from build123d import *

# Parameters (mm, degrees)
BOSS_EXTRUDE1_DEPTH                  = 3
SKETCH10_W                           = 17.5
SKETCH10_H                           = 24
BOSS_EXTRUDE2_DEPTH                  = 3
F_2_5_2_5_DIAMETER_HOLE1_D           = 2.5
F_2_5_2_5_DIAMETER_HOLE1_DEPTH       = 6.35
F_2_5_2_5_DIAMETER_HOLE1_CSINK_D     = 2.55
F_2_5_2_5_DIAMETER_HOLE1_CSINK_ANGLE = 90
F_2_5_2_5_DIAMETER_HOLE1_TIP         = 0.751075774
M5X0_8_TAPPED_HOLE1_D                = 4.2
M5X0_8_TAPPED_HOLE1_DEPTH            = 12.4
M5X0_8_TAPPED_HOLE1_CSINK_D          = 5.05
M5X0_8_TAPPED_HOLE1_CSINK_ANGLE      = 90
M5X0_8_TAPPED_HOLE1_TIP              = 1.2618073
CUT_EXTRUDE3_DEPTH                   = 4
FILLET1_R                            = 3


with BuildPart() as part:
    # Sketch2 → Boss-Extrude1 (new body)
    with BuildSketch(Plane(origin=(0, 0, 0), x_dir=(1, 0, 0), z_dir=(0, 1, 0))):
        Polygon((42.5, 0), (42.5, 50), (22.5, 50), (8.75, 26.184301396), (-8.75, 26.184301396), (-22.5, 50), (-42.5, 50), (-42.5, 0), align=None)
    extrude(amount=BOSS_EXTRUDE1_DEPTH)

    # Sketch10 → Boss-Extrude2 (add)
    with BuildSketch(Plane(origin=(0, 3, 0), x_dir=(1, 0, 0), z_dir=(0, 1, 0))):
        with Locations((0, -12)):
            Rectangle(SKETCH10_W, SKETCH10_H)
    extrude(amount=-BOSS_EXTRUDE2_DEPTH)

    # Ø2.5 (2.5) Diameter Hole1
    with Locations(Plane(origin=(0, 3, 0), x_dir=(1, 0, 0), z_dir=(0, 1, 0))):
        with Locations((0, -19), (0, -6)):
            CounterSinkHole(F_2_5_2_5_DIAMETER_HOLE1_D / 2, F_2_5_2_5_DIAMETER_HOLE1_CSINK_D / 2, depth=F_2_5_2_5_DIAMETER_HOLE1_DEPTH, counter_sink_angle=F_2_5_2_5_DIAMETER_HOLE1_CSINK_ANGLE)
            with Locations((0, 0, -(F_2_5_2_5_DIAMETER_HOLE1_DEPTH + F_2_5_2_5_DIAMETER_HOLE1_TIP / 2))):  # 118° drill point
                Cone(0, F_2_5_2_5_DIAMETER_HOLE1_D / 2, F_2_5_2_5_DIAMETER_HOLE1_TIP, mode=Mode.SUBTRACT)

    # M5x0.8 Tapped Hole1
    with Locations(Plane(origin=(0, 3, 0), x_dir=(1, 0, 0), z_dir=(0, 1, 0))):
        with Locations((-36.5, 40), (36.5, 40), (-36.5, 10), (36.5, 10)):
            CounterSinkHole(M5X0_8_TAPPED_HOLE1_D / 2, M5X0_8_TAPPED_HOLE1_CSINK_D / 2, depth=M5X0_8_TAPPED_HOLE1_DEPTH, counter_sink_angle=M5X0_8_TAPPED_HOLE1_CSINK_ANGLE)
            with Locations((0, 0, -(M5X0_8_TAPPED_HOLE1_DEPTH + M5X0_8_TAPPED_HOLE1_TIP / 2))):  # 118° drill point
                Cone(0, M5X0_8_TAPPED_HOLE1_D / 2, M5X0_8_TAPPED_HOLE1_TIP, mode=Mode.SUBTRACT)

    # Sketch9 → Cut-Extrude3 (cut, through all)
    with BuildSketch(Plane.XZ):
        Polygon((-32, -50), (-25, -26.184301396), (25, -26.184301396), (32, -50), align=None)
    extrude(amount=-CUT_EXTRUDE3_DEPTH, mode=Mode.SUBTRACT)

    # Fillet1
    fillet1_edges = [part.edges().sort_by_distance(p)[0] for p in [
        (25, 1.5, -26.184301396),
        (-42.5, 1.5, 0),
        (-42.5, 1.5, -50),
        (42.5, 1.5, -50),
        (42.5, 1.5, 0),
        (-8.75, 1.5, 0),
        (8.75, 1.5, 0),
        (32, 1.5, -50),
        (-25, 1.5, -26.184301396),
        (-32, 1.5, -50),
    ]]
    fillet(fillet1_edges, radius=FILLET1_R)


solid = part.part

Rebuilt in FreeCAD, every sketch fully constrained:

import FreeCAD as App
import Part
import Sketcher
from FreeCAD import Vector
Q = App.Units.Quantity


def edges_at(feature, points):
    """Names of the edges that pass closest to the given points."""
    edges = feature.Shape.Edges
    near = lambda p: min(range(len(edges)), key=lambda i: edges[i].distToShape(Part.Vertex(*p))[0])
    return sorted({f"Edge{near(p) + 1}" for p in points})


def add_polygon(sketch, points):
    """Adds a closed chain of lines whose ends are joined by coincident constraints."""
    first, n = sketch.GeometryCount, len(points)
    for a, b in zip(points, points[1:] + points[:1]):
        sketch.addGeometry(Part.LineSegment(App.Vector(*a, 0), App.Vector(*b, 0)), False)
    for i in range(n):
        sketch.addConstraint(Sketcher.Constraint("Coincident", first + i, 2, first + (i + 1) % n, 1))

doc = App.newDocument("Part")
body = doc.addObject("PartDesign::Body", "Body")

sketch1 = body.newObject("Sketcher::SketchObject", "Sketch")
sketch1.AttachmentSupport = (doc.getObject("XZ_Plane"), [""])
sketch1.MapMode = "FlatFace"
add_polygon(sketch1, [(42, 0), (42, -50), (22, -50), (9, -26), (-9, -26), (-22, -50), (-42, -50), (-42, 0)])
sketch1.addConstraint(Sketcher.Constraint("Vertical", 0))
sketch1.addConstraint(Sketcher.Constraint("Horizontal", 1))
sketch1.addConstraint(Sketcher.Constraint("Horizontal", 3))
sketch1.addConstraint(Sketcher.Constraint("Horizontal", 5))
sketch1.addConstraint(Sketcher.Constraint("Vertical", 6))
sketch1.addConstraint(Sketcher.Constraint("Horizontal", 7))
sketch1.addConstraint(Sketcher.Constraint("Symmetric", 6, 2, 7, 2, -1, 1))
sketch1.addConstraint(Sketcher.Constraint("Symmetric", 1, 2, 4, 2, -2))
sketch1.addConstraint(Sketcher.Constraint("Equal", 2, 4))
sketch1.addConstraint(Sketcher.Constraint("DistanceX", 1, 2, 1, 1, 20.0))
sketch1.addConstraint(Sketcher.Constraint("DistanceX", 7, 1, 7, 2, 85.0))
sketch1.addConstraint(Sketcher.Constraint("DistanceY", 0, 2, 0, 1, 50.0))
sketch1.addConstraint(Sketcher.Constraint("Angle", 2, Q("120 deg")))
sketch1.addConstraint(Sketcher.Constraint("DistanceX", 3, 2, 3, 1, 17.5))
pad1 = body.newObject("PartDesign::Pad", "Pad")
pad1.Profile = sketch1
pad1.Length = 3
pad1.Reversed = True

sketch2 = body.newObject("Sketcher::SketchObject", "Sketch001")
sketch2.AttachmentSupport = (doc.getObject("XZ_Plane"), [""])
sketch2.MapMode = "FlatFace"
sketch2.AttachmentOffset = App.Placement(Vector(0, 0, -3), App.Rotation())
add_polygon(sketch2, [(-9, 0), (-9, 24), (9, 24), (9, 0)])
sketch2.addConstraint(Sketcher.Constraint("Vertical", 0))
sketch2.addConstraint(Sketcher.Constraint("Horizontal", 1))
sketch2.addConstraint(Sketcher.Constraint("Vertical", 2))
sketch2.addConstraint(Sketcher.Constraint("Horizontal", 3))
sketch2.addConstraint(Sketcher.Constraint("Symmetric", 2, 2, 3, 2, -1, 1))
sketch2.addConstraint(Sketcher.Constraint("DistanceY", 0, 1, 0, 2, 24.0))
sketch2.addConstraint(Sketcher.Constraint("DistanceX", 1, 1, 1, 2, 17.5))
pad2 = body.newObject("PartDesign::Pad", "Pad001")
pad2.Profile = sketch2
pad2.Length = 3

sketch3 = body.newObject("Sketcher::SketchObject", "Sketch002")
sketch3.AttachmentSupport = (doc.getObject("XZ_Plane"), [""])
sketch3.MapMode = "FlatFace"
sketch3.AttachmentOffset = App.Placement(Vector(0, 0, -3), App.Rotation())
sketch3.addGeometry(Part.Circle(Vector(0, 19, 0), Vector(0, 0, 1), 1.2), False)
sketch3.addGeometry(Part.Circle(Vector(0, 6, 0), Vector(0, 0, 1), 1.2), False)
sketch3.addConstraint(Sketcher.Constraint("Equal", 0, 1))
sketch3.addConstraint(Sketcher.Constraint("PointOnObject", 0, 3, -2))
sketch3.addConstraint(Sketcher.Constraint("PointOnObject", 1, 3, -2))
sketch3.addConstraint(Sketcher.Constraint("Diameter", 0, 2.5))
sketch3.addConstraint(Sketcher.Constraint("DistanceY", -1, 1, 0, 3, 19.0))
sketch3.addConstraint(Sketcher.Constraint("DistanceY", -1, 1, 1, 3, 6.0))
doc.recompute()
hole = body.newObject("PartDesign::Hole", "Hole")
hole.Profile = sketch3
hole.ThreadType = "None"
hole.Diameter = 2.5
hole.DepthType = "Dimension"
hole.Depth = 6.35
hole.DrillPoint = "Angled"
hole.DrillPointAngle = 118
hole.HoleCutType = "Countersink"
hole.HoleCutDiameter = 2.55
hole.HoleCutCountersinkAngle = 90
hole.Reversed = True

sketch4 = body.newObject("Sketcher::SketchObject", "Sketch003")
sketch4.AttachmentSupport = (doc.getObject("XZ_Plane"), [""])
sketch4.MapMode = "FlatFace"
sketch4.AttachmentOffset = App.Placement(Vector(0, 0, -3), App.Rotation())
sketch4.addGeometry(Part.Circle(Vector(-36.5, -40, 0), Vector(0, 0, 1), 2.1), False)
sketch4.addGeometry(Part.Circle(Vector(36.5, -40, 0), Vector(0, 0, 1), 2.1), False)
sketch4.addGeometry(Part.Circle(Vector(-36.5, -10, 0), Vector(0, 0, 1), 2.1), False)
sketch4.addGeometry(Part.Circle(Vector(36.5, -10, 0), Vector(0, 0, 1), 2.1), False)
sketch4.addConstraint(Sketcher.Constraint("Equal", 0, 1))
sketch4.addConstraint(Sketcher.Constraint("Equal", 1, 2))
sketch4.addConstraint(Sketcher.Constraint("Equal", 2, 3))
sketch4.addConstraint(Sketcher.Constraint("Symmetric", 0, 3, 1, 3, -2))
sketch4.addConstraint(Sketcher.Constraint("Symmetric", 2, 3, 3, 3, -2))
sketch4.addConstraint(Sketcher.Constraint("Vertical", 0, 3, 2, 3))
sketch4.addConstraint(Sketcher.Constraint("Diameter", 0, 4.2))
sketch4.addConstraint(Sketcher.Constraint("DistanceY", 0, 3, -1, 1, 40.0))
sketch4.addConstraint(Sketcher.Constraint("DistanceY", 2, 3, -1, 1, 10.0))
sketch4.addConstraint(Sketcher.Constraint("DistanceX", 0, 3, 1, 3, 73.0))
doc.recompute()
hole2 = body.newObject("PartDesign::Hole", "Hole001")
hole2.Profile = sketch4
hole2.ThreadType = "None"
hole2.Diameter = 4.2
hole2.DepthType = "Dimension"
hole2.Depth = 12.4
hole2.DrillPoint = "Angled"
hole2.DrillPointAngle = 118
hole2.HoleCutType = "Countersink"
hole2.HoleCutDiameter = 5.05
hole2.HoleCutCountersinkAngle = 90
hole2.Reversed = True

sketch5 = body.newObject("Sketcher::SketchObject", "Sketch004")
sketch5.AttachmentSupport = (doc.getObject("XZ_Plane"), [""])
sketch5.MapMode = "FlatFace"
add_polygon(sketch5, [(-25, -26), (-32, -50), (32, -50), (25, -26)])
sketch5.addConstraint(Sketcher.Constraint("Horizontal", 1))
sketch5.addConstraint(Sketcher.Constraint("Horizontal", 3))
sketch5.addConstraint(Sketcher.Constraint("Equal", 0, 2))
sketch5.addConstraint(Sketcher.Constraint("DistanceX", 1, 1, 1, 2, 64.0))
sketch5.addConstraint(Sketcher.Constraint("DistanceX", 3, 2, 3, 1, 50.0))
sketch5.addConstraint(Sketcher.Constraint("DistanceX", 0, 2, -1, 1, 32.0))
sketch5.addConstraint(Sketcher.Constraint("DistanceY", 0, 2, -1, 1, 50.0))
sketch5.addConstraint(Sketcher.Constraint("DistanceY", 2, 2, -1, 1, 26.184301))
pocket1 = body.newObject("PartDesign::Pocket", "Pocket")
pocket1.Profile = sketch5
pocket1.Type = "ThroughAll"
doc.recompute()

fillet = body.newObject("PartDesign::Fillet", "Fillet")
fillet.Base = (pocket1, edges_at(pocket1, [
    (25, 1.5, -26.184),
    (-42.5, 1.5, 0),
    (-42.5, 1.5, -50),
    (42.5, 1.5, -50),
    (42.5, 1.5, 0),
    (-8.75, 1.5, 0),
    (8.75, 1.5, 0),
    (32, 1.5, -50),
    (-25, 1.5, -26.184),
    (-32, 1.5, -50),
]))
fillet.Radius = 3

doc.recompute()
